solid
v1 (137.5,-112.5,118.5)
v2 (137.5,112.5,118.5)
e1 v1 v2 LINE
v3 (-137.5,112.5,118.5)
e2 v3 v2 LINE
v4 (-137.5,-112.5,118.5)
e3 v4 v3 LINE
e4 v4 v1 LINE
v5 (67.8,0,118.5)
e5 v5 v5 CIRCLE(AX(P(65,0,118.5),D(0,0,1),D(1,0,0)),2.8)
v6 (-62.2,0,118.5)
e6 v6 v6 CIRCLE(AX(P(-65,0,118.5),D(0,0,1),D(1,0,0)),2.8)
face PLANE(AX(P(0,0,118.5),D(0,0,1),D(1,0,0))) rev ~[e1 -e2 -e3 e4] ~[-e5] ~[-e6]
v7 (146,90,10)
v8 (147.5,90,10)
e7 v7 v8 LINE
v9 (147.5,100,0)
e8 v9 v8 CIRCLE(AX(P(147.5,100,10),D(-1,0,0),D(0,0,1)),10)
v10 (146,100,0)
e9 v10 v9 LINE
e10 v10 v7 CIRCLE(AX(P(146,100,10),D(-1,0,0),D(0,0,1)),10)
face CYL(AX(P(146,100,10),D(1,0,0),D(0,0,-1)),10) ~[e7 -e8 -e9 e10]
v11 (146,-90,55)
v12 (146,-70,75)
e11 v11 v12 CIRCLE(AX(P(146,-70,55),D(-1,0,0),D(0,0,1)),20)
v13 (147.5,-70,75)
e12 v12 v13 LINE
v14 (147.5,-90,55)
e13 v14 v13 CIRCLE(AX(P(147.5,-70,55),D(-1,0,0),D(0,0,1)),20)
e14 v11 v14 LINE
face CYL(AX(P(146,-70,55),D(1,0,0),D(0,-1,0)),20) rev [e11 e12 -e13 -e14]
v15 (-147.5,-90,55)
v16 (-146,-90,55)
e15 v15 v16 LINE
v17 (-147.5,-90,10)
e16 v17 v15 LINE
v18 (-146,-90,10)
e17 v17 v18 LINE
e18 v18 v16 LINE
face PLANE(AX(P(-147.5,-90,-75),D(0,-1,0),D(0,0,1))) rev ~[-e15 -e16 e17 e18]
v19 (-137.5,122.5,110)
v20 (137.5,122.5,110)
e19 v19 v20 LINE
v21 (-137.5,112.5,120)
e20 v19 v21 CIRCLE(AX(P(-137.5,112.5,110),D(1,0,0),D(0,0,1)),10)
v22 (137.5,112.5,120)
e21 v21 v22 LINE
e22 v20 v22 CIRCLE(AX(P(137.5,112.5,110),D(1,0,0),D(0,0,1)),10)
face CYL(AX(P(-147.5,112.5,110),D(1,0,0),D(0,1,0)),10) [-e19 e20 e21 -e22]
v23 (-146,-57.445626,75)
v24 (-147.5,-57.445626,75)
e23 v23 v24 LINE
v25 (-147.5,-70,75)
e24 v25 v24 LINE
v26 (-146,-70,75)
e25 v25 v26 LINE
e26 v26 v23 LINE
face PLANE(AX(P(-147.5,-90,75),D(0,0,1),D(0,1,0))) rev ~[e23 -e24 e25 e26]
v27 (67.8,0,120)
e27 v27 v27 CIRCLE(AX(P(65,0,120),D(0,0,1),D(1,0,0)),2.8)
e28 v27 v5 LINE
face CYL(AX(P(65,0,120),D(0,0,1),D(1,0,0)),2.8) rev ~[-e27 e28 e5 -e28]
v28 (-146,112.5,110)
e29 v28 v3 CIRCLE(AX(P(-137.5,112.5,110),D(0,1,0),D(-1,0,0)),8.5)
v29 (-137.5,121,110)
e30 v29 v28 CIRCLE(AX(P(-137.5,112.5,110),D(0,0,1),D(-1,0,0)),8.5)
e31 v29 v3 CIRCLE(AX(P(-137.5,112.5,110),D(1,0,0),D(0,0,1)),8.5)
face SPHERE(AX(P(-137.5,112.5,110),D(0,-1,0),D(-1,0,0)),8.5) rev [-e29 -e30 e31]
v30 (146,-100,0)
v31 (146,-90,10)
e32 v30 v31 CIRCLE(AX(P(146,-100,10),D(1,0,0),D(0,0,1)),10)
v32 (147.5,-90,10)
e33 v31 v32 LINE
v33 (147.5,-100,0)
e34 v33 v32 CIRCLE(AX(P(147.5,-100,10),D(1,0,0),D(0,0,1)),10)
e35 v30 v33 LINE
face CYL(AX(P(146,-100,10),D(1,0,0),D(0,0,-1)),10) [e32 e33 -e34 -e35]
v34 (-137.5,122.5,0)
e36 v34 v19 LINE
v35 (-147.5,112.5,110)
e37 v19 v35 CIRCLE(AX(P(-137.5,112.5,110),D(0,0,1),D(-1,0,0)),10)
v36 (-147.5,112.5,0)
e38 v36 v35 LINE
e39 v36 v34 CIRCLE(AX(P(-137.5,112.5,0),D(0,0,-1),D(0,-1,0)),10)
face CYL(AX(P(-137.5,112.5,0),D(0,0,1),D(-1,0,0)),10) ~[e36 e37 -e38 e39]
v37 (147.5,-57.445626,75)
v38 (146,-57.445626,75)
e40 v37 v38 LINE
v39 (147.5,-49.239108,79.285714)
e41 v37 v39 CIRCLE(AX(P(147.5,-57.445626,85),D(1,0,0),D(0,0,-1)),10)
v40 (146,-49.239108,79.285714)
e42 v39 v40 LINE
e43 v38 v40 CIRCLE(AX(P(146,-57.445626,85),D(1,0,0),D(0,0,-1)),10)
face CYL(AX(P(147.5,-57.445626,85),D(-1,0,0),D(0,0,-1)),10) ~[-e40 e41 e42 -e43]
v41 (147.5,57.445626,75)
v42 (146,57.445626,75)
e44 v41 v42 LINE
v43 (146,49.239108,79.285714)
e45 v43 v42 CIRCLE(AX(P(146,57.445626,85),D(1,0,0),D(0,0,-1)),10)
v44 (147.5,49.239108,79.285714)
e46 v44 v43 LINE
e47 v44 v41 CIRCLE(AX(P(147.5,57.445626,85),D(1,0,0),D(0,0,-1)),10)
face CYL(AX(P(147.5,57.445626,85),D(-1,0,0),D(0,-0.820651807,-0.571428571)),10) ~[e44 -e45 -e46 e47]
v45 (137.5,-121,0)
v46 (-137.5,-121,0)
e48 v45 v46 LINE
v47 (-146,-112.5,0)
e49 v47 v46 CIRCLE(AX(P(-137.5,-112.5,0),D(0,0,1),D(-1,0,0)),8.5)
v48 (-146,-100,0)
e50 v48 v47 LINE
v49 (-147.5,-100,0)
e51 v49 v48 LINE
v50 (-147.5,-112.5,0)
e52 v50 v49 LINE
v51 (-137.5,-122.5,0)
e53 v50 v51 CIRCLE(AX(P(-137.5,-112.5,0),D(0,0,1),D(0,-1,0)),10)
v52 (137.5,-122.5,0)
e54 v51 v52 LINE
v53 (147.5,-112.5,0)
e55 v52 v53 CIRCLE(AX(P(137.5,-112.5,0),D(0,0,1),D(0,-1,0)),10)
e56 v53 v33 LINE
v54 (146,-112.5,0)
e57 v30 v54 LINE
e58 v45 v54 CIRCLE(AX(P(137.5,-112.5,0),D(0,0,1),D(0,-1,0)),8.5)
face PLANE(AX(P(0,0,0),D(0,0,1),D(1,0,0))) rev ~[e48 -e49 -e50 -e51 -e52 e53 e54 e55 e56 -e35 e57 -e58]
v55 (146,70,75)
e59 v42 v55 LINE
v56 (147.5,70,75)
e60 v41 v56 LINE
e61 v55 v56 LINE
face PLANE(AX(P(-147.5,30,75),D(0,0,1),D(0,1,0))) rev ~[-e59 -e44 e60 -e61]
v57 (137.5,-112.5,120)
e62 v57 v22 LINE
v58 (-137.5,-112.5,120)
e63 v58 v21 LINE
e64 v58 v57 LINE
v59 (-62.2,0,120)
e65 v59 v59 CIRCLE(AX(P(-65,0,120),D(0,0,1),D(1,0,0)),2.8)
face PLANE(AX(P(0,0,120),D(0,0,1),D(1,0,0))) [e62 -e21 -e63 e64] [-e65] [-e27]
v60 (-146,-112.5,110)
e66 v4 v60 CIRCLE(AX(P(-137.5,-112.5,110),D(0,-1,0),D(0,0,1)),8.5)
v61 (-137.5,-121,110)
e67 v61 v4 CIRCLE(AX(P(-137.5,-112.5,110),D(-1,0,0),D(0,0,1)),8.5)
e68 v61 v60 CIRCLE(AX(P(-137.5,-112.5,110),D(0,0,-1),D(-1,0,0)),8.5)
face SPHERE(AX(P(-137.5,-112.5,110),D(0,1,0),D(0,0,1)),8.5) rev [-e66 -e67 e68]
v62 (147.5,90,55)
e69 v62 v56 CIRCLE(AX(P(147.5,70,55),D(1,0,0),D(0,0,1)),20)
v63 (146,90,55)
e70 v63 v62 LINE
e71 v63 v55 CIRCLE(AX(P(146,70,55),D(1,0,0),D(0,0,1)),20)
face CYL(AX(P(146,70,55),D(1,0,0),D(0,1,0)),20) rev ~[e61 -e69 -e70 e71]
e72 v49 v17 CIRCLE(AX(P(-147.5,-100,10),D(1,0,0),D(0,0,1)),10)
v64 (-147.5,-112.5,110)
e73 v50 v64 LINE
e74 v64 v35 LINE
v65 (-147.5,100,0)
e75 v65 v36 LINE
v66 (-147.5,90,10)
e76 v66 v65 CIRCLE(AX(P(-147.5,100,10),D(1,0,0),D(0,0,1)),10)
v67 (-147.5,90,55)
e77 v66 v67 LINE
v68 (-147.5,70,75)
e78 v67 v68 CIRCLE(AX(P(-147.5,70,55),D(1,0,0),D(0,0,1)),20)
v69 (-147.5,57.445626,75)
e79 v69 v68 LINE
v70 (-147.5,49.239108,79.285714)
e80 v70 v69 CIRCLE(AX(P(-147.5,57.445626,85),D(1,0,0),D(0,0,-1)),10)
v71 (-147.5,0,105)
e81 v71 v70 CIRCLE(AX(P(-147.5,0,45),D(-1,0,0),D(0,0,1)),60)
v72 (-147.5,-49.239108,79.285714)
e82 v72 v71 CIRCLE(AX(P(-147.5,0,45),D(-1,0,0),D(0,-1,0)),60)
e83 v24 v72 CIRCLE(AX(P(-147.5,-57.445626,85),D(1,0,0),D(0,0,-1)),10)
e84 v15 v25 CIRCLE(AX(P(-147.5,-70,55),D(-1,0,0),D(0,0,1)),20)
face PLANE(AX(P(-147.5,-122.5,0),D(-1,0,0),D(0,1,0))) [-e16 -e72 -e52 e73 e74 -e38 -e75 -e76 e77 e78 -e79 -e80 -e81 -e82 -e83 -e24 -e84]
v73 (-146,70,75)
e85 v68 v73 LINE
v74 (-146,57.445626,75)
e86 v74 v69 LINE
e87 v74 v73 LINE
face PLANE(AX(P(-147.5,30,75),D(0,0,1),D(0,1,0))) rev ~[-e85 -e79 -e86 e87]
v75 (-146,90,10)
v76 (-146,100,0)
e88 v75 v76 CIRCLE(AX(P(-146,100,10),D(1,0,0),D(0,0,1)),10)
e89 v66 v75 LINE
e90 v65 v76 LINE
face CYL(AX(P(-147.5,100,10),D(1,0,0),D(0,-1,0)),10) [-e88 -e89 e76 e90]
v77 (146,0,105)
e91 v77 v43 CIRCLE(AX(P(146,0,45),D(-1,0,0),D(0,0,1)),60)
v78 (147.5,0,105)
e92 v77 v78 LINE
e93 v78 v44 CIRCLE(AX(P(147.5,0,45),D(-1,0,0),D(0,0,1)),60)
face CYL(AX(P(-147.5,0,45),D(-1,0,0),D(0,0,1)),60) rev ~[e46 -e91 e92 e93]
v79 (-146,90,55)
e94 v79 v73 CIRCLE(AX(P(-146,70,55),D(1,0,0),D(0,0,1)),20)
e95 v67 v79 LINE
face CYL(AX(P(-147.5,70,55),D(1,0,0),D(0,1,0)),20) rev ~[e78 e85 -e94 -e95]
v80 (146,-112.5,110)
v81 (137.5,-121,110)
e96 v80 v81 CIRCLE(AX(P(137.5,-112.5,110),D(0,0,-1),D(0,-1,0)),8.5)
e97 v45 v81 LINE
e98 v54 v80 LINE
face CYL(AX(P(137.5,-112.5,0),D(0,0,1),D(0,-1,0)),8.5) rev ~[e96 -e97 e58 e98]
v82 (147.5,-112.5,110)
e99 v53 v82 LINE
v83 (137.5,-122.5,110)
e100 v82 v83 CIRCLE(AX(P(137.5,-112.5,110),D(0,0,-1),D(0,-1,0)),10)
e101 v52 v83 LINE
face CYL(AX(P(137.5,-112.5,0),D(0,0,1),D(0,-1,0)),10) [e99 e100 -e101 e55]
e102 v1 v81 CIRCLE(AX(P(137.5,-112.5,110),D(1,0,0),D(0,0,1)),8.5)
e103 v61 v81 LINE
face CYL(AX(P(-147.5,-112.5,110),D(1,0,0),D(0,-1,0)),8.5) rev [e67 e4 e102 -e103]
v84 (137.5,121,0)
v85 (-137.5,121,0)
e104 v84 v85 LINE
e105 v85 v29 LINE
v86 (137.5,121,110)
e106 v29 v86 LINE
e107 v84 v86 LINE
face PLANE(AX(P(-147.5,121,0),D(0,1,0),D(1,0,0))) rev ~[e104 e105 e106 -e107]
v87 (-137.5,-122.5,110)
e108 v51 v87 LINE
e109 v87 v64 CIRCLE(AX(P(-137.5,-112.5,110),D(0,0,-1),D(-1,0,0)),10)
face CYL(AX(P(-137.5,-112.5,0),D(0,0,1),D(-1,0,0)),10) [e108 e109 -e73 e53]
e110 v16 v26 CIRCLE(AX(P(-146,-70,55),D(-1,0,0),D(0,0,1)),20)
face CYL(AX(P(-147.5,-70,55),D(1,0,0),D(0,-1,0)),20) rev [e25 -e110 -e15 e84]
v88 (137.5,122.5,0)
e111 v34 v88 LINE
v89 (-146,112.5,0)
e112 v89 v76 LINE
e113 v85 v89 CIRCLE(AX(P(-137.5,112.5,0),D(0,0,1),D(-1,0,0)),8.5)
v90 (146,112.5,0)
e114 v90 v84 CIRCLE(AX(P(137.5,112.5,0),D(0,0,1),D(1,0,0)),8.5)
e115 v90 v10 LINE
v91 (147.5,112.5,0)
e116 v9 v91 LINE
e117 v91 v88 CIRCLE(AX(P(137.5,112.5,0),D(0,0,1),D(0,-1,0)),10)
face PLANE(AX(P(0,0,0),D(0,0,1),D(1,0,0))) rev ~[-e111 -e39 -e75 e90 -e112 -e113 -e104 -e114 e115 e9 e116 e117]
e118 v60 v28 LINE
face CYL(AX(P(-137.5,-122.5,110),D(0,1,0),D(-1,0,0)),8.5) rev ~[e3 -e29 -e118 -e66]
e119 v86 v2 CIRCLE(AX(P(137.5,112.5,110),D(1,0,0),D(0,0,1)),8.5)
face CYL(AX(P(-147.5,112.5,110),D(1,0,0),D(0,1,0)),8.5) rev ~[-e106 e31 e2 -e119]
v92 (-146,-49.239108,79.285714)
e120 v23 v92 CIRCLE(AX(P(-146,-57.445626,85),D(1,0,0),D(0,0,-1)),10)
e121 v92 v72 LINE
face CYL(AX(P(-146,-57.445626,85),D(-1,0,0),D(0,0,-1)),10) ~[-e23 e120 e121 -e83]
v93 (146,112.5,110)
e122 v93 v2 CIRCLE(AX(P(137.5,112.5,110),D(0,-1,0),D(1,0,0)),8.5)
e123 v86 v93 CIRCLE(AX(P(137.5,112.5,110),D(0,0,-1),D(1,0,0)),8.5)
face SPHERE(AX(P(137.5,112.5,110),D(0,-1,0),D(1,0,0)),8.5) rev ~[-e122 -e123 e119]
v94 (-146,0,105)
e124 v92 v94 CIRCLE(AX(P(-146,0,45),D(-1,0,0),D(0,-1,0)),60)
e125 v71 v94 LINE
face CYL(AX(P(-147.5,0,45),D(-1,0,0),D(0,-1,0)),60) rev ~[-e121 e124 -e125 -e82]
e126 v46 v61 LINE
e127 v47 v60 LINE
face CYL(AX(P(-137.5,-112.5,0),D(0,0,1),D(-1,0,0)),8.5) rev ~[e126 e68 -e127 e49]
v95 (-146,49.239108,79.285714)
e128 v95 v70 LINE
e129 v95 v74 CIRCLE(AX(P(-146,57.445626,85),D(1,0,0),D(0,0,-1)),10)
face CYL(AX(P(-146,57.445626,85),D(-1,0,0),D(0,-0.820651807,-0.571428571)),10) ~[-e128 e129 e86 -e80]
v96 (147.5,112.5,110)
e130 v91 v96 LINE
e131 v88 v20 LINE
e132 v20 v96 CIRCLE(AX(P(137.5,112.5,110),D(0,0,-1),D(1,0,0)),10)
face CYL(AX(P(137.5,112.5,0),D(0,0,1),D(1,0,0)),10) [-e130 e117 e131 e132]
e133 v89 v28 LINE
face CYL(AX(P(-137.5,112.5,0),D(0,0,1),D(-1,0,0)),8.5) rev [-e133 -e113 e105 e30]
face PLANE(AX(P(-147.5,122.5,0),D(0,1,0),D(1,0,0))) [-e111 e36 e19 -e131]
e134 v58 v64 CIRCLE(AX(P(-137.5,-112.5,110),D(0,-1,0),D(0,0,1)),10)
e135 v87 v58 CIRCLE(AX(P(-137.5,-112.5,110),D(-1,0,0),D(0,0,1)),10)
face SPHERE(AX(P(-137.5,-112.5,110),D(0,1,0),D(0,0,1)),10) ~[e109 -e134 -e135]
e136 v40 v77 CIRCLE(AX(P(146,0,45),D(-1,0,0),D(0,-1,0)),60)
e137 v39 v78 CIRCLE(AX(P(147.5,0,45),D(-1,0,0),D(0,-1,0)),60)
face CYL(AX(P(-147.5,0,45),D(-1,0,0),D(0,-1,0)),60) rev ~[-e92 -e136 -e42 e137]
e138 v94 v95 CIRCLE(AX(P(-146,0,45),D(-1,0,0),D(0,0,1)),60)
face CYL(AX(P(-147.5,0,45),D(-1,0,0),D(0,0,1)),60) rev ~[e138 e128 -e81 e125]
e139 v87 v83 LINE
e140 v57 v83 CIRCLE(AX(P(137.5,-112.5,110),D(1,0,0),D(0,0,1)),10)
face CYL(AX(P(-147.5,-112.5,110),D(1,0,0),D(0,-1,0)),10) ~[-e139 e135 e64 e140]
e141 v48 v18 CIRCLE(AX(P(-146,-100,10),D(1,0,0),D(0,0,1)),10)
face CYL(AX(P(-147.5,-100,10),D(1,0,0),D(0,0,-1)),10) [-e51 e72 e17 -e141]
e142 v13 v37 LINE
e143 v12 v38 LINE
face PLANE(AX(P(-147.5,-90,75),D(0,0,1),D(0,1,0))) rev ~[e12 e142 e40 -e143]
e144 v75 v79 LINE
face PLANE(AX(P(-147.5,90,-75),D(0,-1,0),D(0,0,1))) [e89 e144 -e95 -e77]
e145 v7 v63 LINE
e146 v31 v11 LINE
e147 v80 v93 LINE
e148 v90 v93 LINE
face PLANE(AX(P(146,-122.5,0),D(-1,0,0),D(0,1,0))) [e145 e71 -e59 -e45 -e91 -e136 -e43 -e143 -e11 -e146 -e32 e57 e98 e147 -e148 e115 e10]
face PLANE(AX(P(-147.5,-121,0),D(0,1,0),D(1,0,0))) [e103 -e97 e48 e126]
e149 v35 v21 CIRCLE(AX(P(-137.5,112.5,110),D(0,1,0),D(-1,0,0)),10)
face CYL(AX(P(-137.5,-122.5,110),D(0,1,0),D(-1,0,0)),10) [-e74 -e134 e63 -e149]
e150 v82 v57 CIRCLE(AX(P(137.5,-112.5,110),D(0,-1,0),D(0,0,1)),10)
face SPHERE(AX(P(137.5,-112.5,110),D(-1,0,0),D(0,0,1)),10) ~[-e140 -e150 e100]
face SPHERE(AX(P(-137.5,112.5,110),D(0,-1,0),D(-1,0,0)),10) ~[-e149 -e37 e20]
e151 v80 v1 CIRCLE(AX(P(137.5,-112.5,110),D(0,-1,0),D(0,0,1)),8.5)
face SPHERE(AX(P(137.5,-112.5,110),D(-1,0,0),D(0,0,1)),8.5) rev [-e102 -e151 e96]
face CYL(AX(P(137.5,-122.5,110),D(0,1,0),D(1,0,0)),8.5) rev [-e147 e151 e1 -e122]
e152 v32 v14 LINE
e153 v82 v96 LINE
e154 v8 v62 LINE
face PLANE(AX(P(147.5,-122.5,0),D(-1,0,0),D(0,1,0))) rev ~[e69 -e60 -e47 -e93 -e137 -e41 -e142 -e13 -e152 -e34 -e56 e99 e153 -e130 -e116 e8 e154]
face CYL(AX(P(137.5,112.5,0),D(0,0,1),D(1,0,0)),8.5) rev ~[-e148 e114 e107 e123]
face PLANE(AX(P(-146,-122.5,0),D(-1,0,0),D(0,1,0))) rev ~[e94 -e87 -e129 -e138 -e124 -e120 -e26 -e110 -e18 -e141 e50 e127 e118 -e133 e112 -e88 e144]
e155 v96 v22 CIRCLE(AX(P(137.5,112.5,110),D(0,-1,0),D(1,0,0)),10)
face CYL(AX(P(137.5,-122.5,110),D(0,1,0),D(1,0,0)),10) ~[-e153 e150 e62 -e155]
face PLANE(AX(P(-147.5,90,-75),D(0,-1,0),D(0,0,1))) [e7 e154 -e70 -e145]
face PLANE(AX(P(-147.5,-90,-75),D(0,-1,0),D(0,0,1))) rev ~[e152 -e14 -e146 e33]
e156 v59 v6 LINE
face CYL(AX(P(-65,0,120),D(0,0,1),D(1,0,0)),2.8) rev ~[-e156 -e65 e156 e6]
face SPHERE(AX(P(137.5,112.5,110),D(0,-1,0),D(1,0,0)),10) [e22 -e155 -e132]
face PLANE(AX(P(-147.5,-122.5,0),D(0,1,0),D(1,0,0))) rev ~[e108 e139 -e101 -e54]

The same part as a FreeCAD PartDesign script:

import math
import FreeCAD as App
import Part
import Sketcher

V = App.Vector


def edges_at(feature, points):
    """Names of the edges that pass closest to the given points."""
    edges = feature.Shape.Edges
    near = lambda p: min(range(len(edges)), key=lambda i: edges[i].distToShape(Part.Vertex(*p))[0])
    return sorted({f"Edge{near(p) + 1}" for p in points})


def faces_at(feature, points):
    """Names of the faces that lie closest to the given points."""
    faces = feature.Shape.Faces
    near = lambda p: min(range(len(faces)), key=lambda i: faces[i].distToShape(Part.Vertex(*p))[0])
    return sorted({f"Face{near(p) + 1}" for p in points})

doc = App.newDocument("Part")
params = doc.addObject("Spreadsheet::Sheet", "Params")
for row, (alias, value) in enumerate([
    ("sketch1_width", "295 mm"),
    ("sketch1_height", "245 mm"),
    ("pad1_length", "120 mm"),
    ("fillet_radius", "10 mm"),
    ("thickness_wall", "1.5 mm"),
    ("sketch2_radius", "60 mm"),
    ("sketch2_height", "45 mm"),
    ("sketch3_width", "60 mm"),
    ("sketch3_height", "150 mm"),
    ("fillet2_radius", "10 mm"),
    ("fillet3_radius", "20 mm"),
    ("sketch4_diameter", "5.6 mm"),
    ("pocket3_length", "10 mm"),
], start=1):
    params.set(f"A{row}", alias)
    params.set(f"B{row}", "=" + value)
    params.setAlias(f"B{row}", alias)

body = doc.addObject("PartDesign::Body", "Body")

# Sketch on XY plane
sketch1 = body.newObject("Sketcher::SketchObject", "Sketch")
sketch1.AttachmentSupport = (doc.getObject("XY_Plane"), [""])
sketch1.MapMode = "FlatFace"
sketch1.addGeometry([
    Part.LineSegment(V(-147.5, 122.5, 0), V(-147.5, -122.5, 0)),
    Part.LineSegment(V(-147.5, -122.5, 0), V(147.5, -122.5, 0)),
    Part.LineSegment(V(147.5, -122.5, 0), V(147.5, 122.5, 0)),
    Part.LineSegment(V(147.5, 122.5, 0), V(-147.5, 122.5, 0)),
], False)
sketch1.addConstraint([
    Sketcher.Constraint("Coincident", 0, 2, 1, 1),
    Sketcher.Constraint("Coincident", 1, 2, 2, 1),
    Sketcher.Constraint("Coincident", 2, 2, 3, 1),
    Sketcher.Constraint("Coincident", 3, 2, 0, 1),
    Sketcher.Constraint("Vertical", 0),
    Sketcher.Constraint("Horizontal", 1),
    Sketcher.Constraint("Vertical", 2),
    Sketcher.Constraint("Horizontal", 3),
    Sketcher.Constraint("Symmetric", 0, 2, 2, 2, -1, 1),
    Sketcher.Constraint("DistanceX", 1, 1, 1, 2, 295.0),
    Sketcher.Constraint("DistanceY", 0, 2, 0, 1, 245.0),
])
sketch1.setExpression("Constraints[9]", "Params.sketch1_width")
sketch1.setExpression("Constraints[10]", "Params.sketch1_height")
pad1 = body.newObject("PartDesign::Pad", "Pad")
pad1.Profile = sketch1
pad1.setExpression("Length", "Params.pad1_length")
doc.recompute()

fillet = body.newObject("PartDesign::Fillet", "Fillet")
fillet.Base = (pad1, edges_at(pad1, [
    (-147.5, 0, 120),
    (0, -122.5, 120),
    (147.5, 0, 120),
    (147.5, -122.5, 60),
    (-147.5, -122.5, 60),
    (-147.5, 122.5, 60),
    (147.5, 122.5, 60),
    (0, 122.5, 120),
]))
fillet.setExpression("Radius", "Params.fillet_radius")
doc.recompute()

thickness = body.newObject("PartDesign::Thickness", "Thickness")
thickness.Base = (fillet, faces_at(fillet, [(0, 0, 0)]))
thickness.setExpression("Value", "Params.thickness_wall")
thickness.Reversed = True
thickness.Join = "Intersection"

# Sketch on YZ plane
sketch2 = body.newObject("Sketcher::SketchObject", "Sketch001")
sketch2.AttachmentSupport = (doc.getObject("YZ_Plane"), [""])
sketch2.MapMode = "FlatFace"
sketch2.AttachmentOffset = App.Placement(V(0, 0, -147.5), App.Rotation())
sketch2.addGeometry([
    Part.ArcOfCircle(Part.Circle(V(0, 45, 0), V(0, 0, 1), 60), math.radians(0), math.radians(90)),  # 0
    Part.LineSegment(V(60, 45, 0), V(60, 0, 0)),  # 1
    Part.LineSegment(V(60, 0, 0), V(39.68627, 0, 0)),  # 2
    Part.ArcOfCircle(Part.Circle(V(0, 45, 0), V(0, 0, 1), 60), math.radians(-131.409622), math.radians(-48.590378)),  # 3
    Part.LineSegment(V(-39.68627, 0, 0), V(-60, 0, 0)),  # 4
    Part.LineSegment(V(-60, 0, 0), V(-60, 45, 0)),  # 5
    Part.ArcOfCircle(Part.Circle(V(0, 45, 0), V(0, 0, 1), 60), math.radians(90), math.radians(180)),  # 6
], False)
sketch2.addConstraint([
    Sketcher.Constraint("Tangent", 0, 1, 1, 1),
    Sketcher.Constraint("Coincident", 1, 2, 2, 1),
    Sketcher.Constraint("Coincident", 2, 2, 3, 2),
    Sketcher.Constraint("Coincident", 3, 1, 4, 1),
    Sketcher.Constraint("Coincident", 4, 2, 5, 1),
    Sketcher.Constraint("Tangent", 5, 2, 6, 2),
    Sketcher.Constraint("Tangent", 6, 1, 0, 2),
    Sketcher.Constraint("Vertical", 1),
    Sketcher.Constraint("Horizontal", 2),
    Sketcher.Constraint("Horizontal", 4),
    Sketcher.Constraint("Vertical", 5),
    Sketcher.Constraint("Coincident", 3, 3, 0, 3),
    Sketcher.Constraint("Equal", 0, 3),
    Sketcher.Constraint("Equal", 3, 6),
    Sketcher.Constraint("Symmetric", 2, 2, 3, 1, -1, 1),
    Sketcher.Constraint("PointOnObject", 0, 3, -2),
    Sketcher.Constraint("PointOnObject", 6, 1, -2),
    Sketcher.Constraint("Radius", 0, 60.0),
    Sketcher.Constraint("DistanceY", 1, 2, 1, 1, 45.0),
])
sketch2.setExpression("Constraints[17]", "Params.sketch2_radius")
sketch2.setExpression("Constraints[18]", "Params.sketch2_height")
pocket1 = body.newObject("PartDesign::Pocket", "Pocket")
pocket1.Profile = sketch2
pocket1.Type = "ThroughAll"
pocket1.Reversed = True

# Sketch on YZ plane
sketch3 = body.newObject("Sketcher::SketchObject", "Sketch002")
sketch3.AttachmentSupport = (doc.getObject("YZ_Plane"), [""])
sketch3.MapMode = "FlatFace"
sketch3.AttachmentOffset = App.Placement(V(0, 0, -147.5), App.Rotation())
sketch3.addGeometry([
    Part.LineSegment(V(-30, -75, 0), V(-90, -75, 0)),  # 0
    Part.LineSegment(V(-90, -75, 0), V(-90, 75, 0)),  # 1
    Part.LineSegment(V(-90, 75, 0), V(-30, 75, 0)),  # 2
    Part.LineSegment(V(-30, 75, 0), V(-30, -75, 0)),  # 3
    Part.LineSegment(V(90, -75, 0), V(30, -75, 0)),  # 4
    Part.LineSegment(V(30, -75, 0), V(30, 75, 0)),  # 5
    Part.LineSegment(V(30, 75, 0), V(90, 75, 0)),  # 6
    Part.LineSegment(V(90, 75, 0), V(90, -75, 0)),  # 7
], False)
sketch3.addConstraint([
    Sketcher.Constraint("Coincident", 0, 2, 1, 1),
    Sketcher.Constraint("Coincident", 1, 2, 2, 1),
    Sketcher.Constraint("Coincident", 2, 2, 3, 1),
    Sketcher.Constraint("Coincident", 3, 2, 0, 1),
    Sketcher.Constraint("Coincident", 4, 2, 5, 1),
    Sketcher.Constraint("Coincident", 5, 2, 6, 1),
    Sketcher.Constraint("Coincident", 6, 2, 7, 1),
    Sketcher.Constraint("Coincident", 7, 2, 4, 1),
    Sketcher.Constraint("Horizontal", 0),
    Sketcher.Constraint("Vertical", 1),
    Sketcher.Constraint("Horizontal", 2),
    Sketcher.Constraint("Vertical", 3),
    Sketcher.Constraint("Horizontal", 4),
    Sketcher.Constraint("Vertical", 5),
    Sketcher.Constraint("Horizontal", 6),
    Sketcher.Constraint("Vertical", 7),
    Sketcher.Constraint("Symmetric", 2, 2, 4, 2, -1, 1),
    Sketcher.Constraint("Symmetric", 0, 2, 6, 2, -1, 1),
    Sketcher.Constraint("Horizontal", 3, 2, 4, 2),
    Sketcher.Constraint("DistanceX", 0, 2, 0, 1, 60.0),
    Sketcher.Constraint("DistanceY", 1, 1, 1, 2, 150.0),
    Sketcher.Constraint("DistanceX", 0, 2, -1, 1, 90.0),
])
sketch3.setExpression("Constraints[19]", "Params.sketch3_width")
sketch3.setExpression("Constraints[20]", "Params.sketch3_height")
pocket2 = body.newObject("PartDesign::Pocket", "Pocket001")
pocket2.Profile = sketch3
pocket2.Type = "ThroughAll"
pocket2.Reversed = True
doc.recompute()

fillet2 = body.newObject("PartDesign::Fillet", "Fillet001")
fillet2.Base = (pocket2, edges_at(pocket2, [
    (146.75, 51.962, 75),
    (146.75, -51.962, 75),
    (146.75, -90, 0),
    (-146.75, -90, 0),
    (-146.75, -51.962, 75),
    (146.75, 90, 0),
    (-146.75, 90, 0),
    (-146.75, 51.962, 75),
]))
fillet2.setExpression("Radius", "Params.fillet2_radius")
doc.recompute()

fillet3 = body.newObject("PartDesign::Fillet", "Fillet002")
fillet3.Base = (fillet2, edges_at(fillet2, [
    (146.75, -90, 75),
    (-146.75, -90, 75),
    (-146.75, 90, 75),
    (146.75, 90, 75),
]))
fillet3.setExpression("Radius", "Params.fillet3_radius")

# Sketch on XY plane
sketch4 = body.newObject("Sketcher::SketchObject", "Sketch003")
sketch4.AttachmentSupport = (doc.getObject("XY_Plane"), [""])
sketch4.MapMode = "FlatFace"
sketch4.AttachmentOffset = App.Placement(V(0, 0, 120), App.Rotation())
sketch4.addGeometry([
    Part.Circle(V(-65, 0, 0), V(0, 0, 1), 2.8),
    Part.Circle(V(65, 0, 0), V(0, 0, 1), 2.8),
], False)
sketch4.addConstraint([
    Sketcher.Constraint("Equal", 0, 1),
    Sketcher.Constraint("Symmetric", 0, 3, 1, 3, -1, 1),
    Sketcher.Constraint("PointOnObject", 0, 3, -1),
    Sketcher.Constraint("Diameter", 0, 5.6),
    Sketcher.Constraint("DistanceX", 0, 3, -1, 1, 65.0),
])
sketch4.setExpression("Constraints[3]", "Params.sketch4_diameter")
pocket3 = body.newObject("PartDesign::Pocket", "Pocket002")
pocket3.Profile = sketch4
pocket3.setExpression("Length", "Params.pocket3_length")

doc.recompute()
